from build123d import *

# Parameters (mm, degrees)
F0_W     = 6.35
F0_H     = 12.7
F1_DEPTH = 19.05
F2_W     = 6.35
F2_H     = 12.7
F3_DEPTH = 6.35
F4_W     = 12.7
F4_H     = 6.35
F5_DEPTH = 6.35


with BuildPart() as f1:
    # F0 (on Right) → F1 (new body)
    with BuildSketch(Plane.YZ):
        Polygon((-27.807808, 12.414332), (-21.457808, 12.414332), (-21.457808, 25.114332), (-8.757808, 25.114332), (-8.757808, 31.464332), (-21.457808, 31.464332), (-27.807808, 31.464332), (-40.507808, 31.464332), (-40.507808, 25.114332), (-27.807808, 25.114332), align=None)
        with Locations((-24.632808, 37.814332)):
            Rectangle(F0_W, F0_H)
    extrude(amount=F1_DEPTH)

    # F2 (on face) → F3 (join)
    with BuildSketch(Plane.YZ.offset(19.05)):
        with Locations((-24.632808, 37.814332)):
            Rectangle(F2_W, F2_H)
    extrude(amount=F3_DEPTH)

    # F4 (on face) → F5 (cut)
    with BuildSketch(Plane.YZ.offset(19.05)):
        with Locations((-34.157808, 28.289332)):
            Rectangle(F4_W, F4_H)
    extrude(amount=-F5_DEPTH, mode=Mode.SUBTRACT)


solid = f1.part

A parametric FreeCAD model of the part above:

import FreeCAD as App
import Part
import Sketcher
from FreeCAD import Vector
Q = App.Units.Quantity


def add_polygon(sketch, points):
    """Adds a closed chain of lines whose ends are joined by coincident constraints."""
    first, n = sketch.GeometryCount, len(points)
    for a, b in zip(points, points[1:] + points[:1]):
        sketch.addGeometry(Part.LineSegment(App.Vector(*a, 0), App.Vector(*b, 0)), False)
    for i in range(n):
        sketch.addConstraint(Sketcher.Constraint("Coincident", first + i, 2, first + (i + 1) % n, 1))

doc = App.newDocument("Part")
body = doc.addObject("PartDesign::Body", "Body")

sketch1 = body.newObject("Sketcher::SketchObject", "Sketch")
sketch1.AttachmentSupport = (doc.getObject("YZ_Plane"), [""])
sketch1.MapMode = "FlatFace"
add_polygon(sketch1, [(-28, 12), (-21, 12), (-21, 25), (-9, 25), (-9, 31), (-21, 31), (-21, 44), (-28, 44), (-28, 31), (-41, 31), (-41, 25), (-28, 25)])
sketch1.addConstraint([
    Sketcher.Constraint("Horizontal", 0),
    Sketcher.Constraint("Vertical", 1),
    Sketcher.Constraint("Horizontal", 2),
    Sketcher.Constraint("Vertical", 3),
    Sketcher.Constraint("Horizontal", 4),
    Sketcher.Constraint("Vertical", 5),
    Sketcher.Constraint("Horizontal", 6),
    Sketcher.Constraint("Vertical", 7),
    Sketcher.Constraint("Horizontal", 8),
    Sketcher.Constraint("Vertical", 9),
    Sketcher.Constraint("Horizontal", 10),
    Sketcher.Constraint("Vertical", 11),
    Sketcher.Constraint("Horizontal", 4, 2, 7, 2),
    Sketcher.Constraint("Horizontal", 2, 2, 9, 2),
    Sketcher.Constraint("Vertical", 1, 2, 4, 2),
    Sketcher.Constraint("Vertical", 7, 2, 10, 2),
    Sketcher.Constraint("Equal", 4, 8),
    Sketcher.Constraint("Equal", 10, 1),
    Sketcher.Constraint("Equal", 6, 3),
    Sketcher.Constraint("Equal", 1, 5),
    Sketcher.Constraint("DistanceX", 2, 1, 2, 2, Q("0.5 in")),
    Sketcher.Constraint("DistanceX", 0, 1, 0, 2, Q("0.25 in")),
    Sketcher.Constraint("DistanceX", 0, 2, -1, 1, Q("21.457808 mm")),
    Sketcher.Constraint("DistanceY", -1, 1, 3, 2, Q("31.464332 mm")),
])
pad1 = body.newObject("PartDesign::Pad", "Pad")
pad1.Profile = sketch1
pad1.Length = Q("0.75 in")

sketch2 = body.newObject("Sketcher::SketchObject", "Sketch001")
sketch2.AttachmentSupport = (doc.getObject("YZ_Plane"), [""])
sketch2.MapMode = "FlatFace"
sketch2.AttachmentOffset = App.Placement(Vector(0, 0, 0.75 * 25.4), App.Rotation())
add_polygon(sketch2, [(-28, 44), (-28, 31), (-21, 31), (-21, 44)])
sketch2.addConstraint([
    Sketcher.Constraint("Vertical", 0),
    Sketcher.Constraint("Horizontal", 1),
    Sketcher.Constraint("Vertical", 2),
    Sketcher.Constraint("Horizontal", 3),
    Sketcher.Constraint("DistanceY", 0, 2, 0, 1, Q("0.5 in")),
    Sketcher.Constraint("DistanceX", 1, 1, 1, 2, Q("0.25 in")),
    Sketcher.Constraint("DistanceX", 0, 2, -1, 1, Q("27.807808 mm")),
    Sketcher.Constraint("DistanceY", -1, 1, 0, 2, Q("31.464332 mm")),
])
pad2 = body.newObject("PartDesign::Pad", "Pad001")
pad2.Profile = sketch2
pad2.Length = Q("0.25 in")

sketch3 = body.newObject("Sketcher::SketchObject", "Sketch002")
sketch3.AttachmentSupport = (doc.getObject("YZ_Plane"), [""])
sketch3.MapMode = "FlatFace"
sketch3.AttachmentOffset = App.Placement(Vector(0, 0, 0.75 * 25.4), App.Rotation())
add_polygon(sketch3, [(-41, 31), (-41, 25), (-28, 25), (-28, 31)])
sketch3.addConstraint([
    Sketcher.Constraint("Vertical", 0),
    Sketcher.Constraint("Horizontal", 1),
    Sketcher.Constraint("Vertical", 2),
    Sketcher.Constraint("Horizontal", 3),
    Sketcher.Constraint("DistanceX", 1, 1, 1, 2, Q("0.5 in")),
    Sketcher.Constraint("DistanceY", 0, 2, 0, 1, Q("0.25 in")),
    Sketcher.Constraint("DistanceX", 1, 2, -1, 1, Q("27.807808 mm")),
    Sketcher.Constraint("DistanceY", -1, 1, 2, 2, Q("31.464332 mm")),
])
pocket1 = body.newObject("PartDesign::Pocket", "Pocket")
pocket1.Profile = sketch3
pocket1.Length = Q("0.25 in")

doc.recompute()
